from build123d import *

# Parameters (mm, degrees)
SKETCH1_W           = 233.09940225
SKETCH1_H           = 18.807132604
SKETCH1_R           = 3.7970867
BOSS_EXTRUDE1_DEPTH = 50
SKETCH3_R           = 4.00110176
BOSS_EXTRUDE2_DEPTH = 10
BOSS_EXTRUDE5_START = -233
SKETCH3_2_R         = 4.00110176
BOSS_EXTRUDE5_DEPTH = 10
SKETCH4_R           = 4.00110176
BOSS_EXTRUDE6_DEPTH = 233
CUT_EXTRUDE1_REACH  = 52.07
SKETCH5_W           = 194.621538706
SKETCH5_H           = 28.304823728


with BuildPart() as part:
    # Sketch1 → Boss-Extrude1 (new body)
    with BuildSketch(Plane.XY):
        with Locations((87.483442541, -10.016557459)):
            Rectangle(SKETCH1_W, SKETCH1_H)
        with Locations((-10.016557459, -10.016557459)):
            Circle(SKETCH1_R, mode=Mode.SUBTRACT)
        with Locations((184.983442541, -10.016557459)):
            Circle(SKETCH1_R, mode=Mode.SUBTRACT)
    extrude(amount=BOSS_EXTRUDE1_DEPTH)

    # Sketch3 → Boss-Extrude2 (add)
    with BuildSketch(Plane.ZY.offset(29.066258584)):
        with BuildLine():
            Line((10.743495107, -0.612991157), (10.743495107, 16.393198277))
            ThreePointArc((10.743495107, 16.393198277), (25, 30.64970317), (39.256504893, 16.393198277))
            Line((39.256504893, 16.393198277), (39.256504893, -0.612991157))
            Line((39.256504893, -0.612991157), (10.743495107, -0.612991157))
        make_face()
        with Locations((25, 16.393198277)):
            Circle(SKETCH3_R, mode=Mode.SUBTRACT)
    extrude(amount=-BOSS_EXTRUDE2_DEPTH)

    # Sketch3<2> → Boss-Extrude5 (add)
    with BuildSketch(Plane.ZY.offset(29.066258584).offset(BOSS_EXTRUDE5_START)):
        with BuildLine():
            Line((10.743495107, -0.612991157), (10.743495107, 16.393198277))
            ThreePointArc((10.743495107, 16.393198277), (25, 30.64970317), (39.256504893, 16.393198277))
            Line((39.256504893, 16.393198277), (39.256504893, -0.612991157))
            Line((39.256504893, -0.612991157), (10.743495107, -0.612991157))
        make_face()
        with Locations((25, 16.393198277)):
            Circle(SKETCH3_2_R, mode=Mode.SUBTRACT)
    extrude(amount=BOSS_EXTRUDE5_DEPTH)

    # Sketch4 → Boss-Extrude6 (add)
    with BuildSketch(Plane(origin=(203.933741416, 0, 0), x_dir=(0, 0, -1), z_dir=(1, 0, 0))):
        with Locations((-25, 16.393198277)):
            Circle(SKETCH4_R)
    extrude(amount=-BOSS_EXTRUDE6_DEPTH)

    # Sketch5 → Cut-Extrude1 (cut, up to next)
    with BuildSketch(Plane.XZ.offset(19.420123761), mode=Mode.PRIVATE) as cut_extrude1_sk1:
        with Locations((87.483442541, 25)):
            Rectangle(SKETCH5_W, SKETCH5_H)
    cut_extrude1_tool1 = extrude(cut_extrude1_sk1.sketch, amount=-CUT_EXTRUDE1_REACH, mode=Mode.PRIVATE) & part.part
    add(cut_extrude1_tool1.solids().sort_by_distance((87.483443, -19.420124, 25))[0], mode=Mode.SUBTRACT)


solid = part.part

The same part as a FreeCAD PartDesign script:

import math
import FreeCAD as App
import Part
import Sketcher

V = App.Vector
Q = App.Units.Quantity


def add_polygon(sketch, points):
    """Adds a closed chain of lines whose ends are joined by coincident constraints."""
    first, n = sketch.GeometryCount, len(points)
    for a, b in zip(points, points[1:] + points[:1]):
        sketch.addGeometry(Part.LineSegment(App.Vector(*a, 0), App.Vector(*b, 0)), False)
    for i in range(n):
        sketch.addConstraint(Sketcher.Constraint("Coincident", first + i, 2, first + (i + 1) % n, 1))

doc = App.newDocument("Part")
body = doc.addObject("PartDesign::Body", "Body")

sketch1 = body.newObject("Sketcher::SketchObject", "Sketch")
sketch1.AttachmentSupport = (doc.getObject("XY_Plane"), [""])
sketch1.MapMode = "FlatFace"
add_polygon(sketch1, [(-29.1, -0.6), (-29.1, -19.4), (204, -19.4), (204, -0.6)])
sketch1.addGeometry(Part.Circle(V(-10, -10, 0), V(0, 0, 1), 3.8), False)
sketch1.addGeometry(Part.Circle(V(185, -10, 0), V(0, 0, 1), 3.8), False)
sketch1.addConstraint(Sketcher.Constraint("Vertical", 0))
sketch1.addConstraint(Sketcher.Constraint("Horizontal", 1))
sketch1.addConstraint(Sketcher.Constraint("Vertical", 2))
sketch1.addConstraint(Sketcher.Constraint("Horizontal", 3))
sketch1.addConstraint(Sketcher.Constraint("Equal", 4, 5))
sketch1.addConstraint(Sketcher.Constraint("Horizontal", 4, 3, 5, 3))
sketch1.addConstraint(Sketcher.Constraint("DistanceX", 4, 3, 5, 3, Q("195 mm")))
sketch1.addConstraint(Sketcher.Constraint("Diameter", 4, Q("7.594173 mm")))
sketch1.addConstraint(Sketcher.Constraint("DistanceX", 0, 2, 4, 3, Q("19.049701 mm")))
sketch1.addConstraint(Sketcher.Constraint("DistanceX", 5, 3, 1, 2, Q("19.049701 mm")))
sketch1.addConstraint(Sketcher.Constraint("DistanceY", 0, 2, 0, 1, Q("18.807133 mm")))
sketch1.addConstraint(Sketcher.Constraint("DistanceX", 0, 2, -1, 1, Q("29.066259 mm")))
sketch1.addConstraint(Sketcher.Constraint("DistanceY", 2, 2, -1, 1, Q("0.612991 mm")))
sketch1.addConstraint(Sketcher.Constraint("DistanceY", 4, 3, -1, 1, Q("10.016557 mm")))
pad1 = body.newObject("PartDesign::Pad", "Pad")
pad1.Profile = sketch1
pad1.Length = 50

sketch2 = body.newObject("Sketcher::SketchObject", "Sketch001")
sketch2.AttachmentSupport = (doc.getObject("YZ_Plane"), [""])
sketch2.MapMode = "FlatFace"
sketch2.AttachmentOffset = App.Placement(V(0, 0, -29.066259), App.Rotation())
sketch2.addGeometry(Part.LineSegment(V(16.4, 10.7, 0), V(-0.6, 10.7, 0)), False)
sketch2.addGeometry(Part.LineSegment(V(-0.6, 10.7, 0), V(-0.6, 39.3, 0)), False)
sketch2.addGeometry(Part.LineSegment(V(-0.6, 39.3, 0), V(16.4, 39.3, 0)), False)
sketch2.addGeometry(Part.ArcOfCircle(Part.Circle(V(16.4, 25, 0), V(0, 0, 1), 14.3), math.radians(-90), math.radians(90)), False)
sketch2.addGeometry(Part.Circle(V(16.4, 25, 0), V(0, 0, 1), 4), False)
sketch2.addConstraint(Sketcher.Constraint("Coincident", 0, 2, 1, 1))
sketch2.addConstraint(Sketcher.Constraint("Coincident", 1, 2, 2, 1))
sketch2.addConstraint(Sketcher.Constraint("Tangent", 2, 2, 3, 2))
sketch2.addConstraint(Sketcher.Constraint("Tangent", 3, 1, 0, 1))
sketch2.addConstraint(Sketcher.Constraint("Horizontal", 0))
sketch2.addConstraint(Sketcher.Constraint("Vertical", 1))
sketch2.addConstraint(Sketcher.Constraint("Horizontal", 2))
sketch2.addConstraint(Sketcher.Constraint("Coincident", 4, 3, 3, 3))
sketch2.addConstraint(Sketcher.Constraint("DistanceY", -1, 1, 3, 3, Q("25 mm")))
sketch2.addConstraint(Sketcher.Constraint("Diameter", 4, Q("8.002204 mm")))
sketch2.addConstraint(Sketcher.Constraint("Radius", 3, Q("14.256505 mm")))
sketch2.addConstraint(Sketcher.Constraint("DistanceX", 0, 2, 0, 1, Q("17.006189 mm")))
sketch2.addConstraint(Sketcher.Constraint("DistanceX", -1, 1, 3, 3, Q("16.393198 mm")))
pad2 = body.newObject("PartDesign::Pad", "Pad001")
pad2.Profile = sketch2
pad2.Length = 10

sketch3 = body.newObject("Sketcher::SketchObject", "Sketch002")
sketch3.AttachmentSupport = (doc.getObject("YZ_Plane"), [""])
sketch3.MapMode = "FlatFace"
sketch3.AttachmentOffset = App.Placement(V(0, 0, 203.933741), App.Rotation())
sketch3.addGeometry(Part.LineSegment(V(16.4, 10.7, 0), V(-0.6, 10.7, 0)), False)
sketch3.addGeometry(Part.LineSegment(V(-0.6, 10.7, 0), V(-0.6, 39.3, 0)), False)
sketch3.addGeometry(Part.LineSegment(V(-0.6, 39.3, 0), V(16.4, 39.3, 0)), False)
sketch3.addGeometry(Part.ArcOfCircle(Part.Circle(V(16.4, 25, 0), V(0, 0, 1), 14.3), math.radians(-90), math.radians(90)), False)
sketch3.addGeometry(Part.Circle(V(16.4, 25, 0), V(0, 0, 1), 4), False)
sketch3.addConstraint(Sketcher.Constraint("Coincident", 0, 2, 1, 1))
sketch3.addConstraint(Sketcher.Constraint("Coincident", 1, 2, 2, 1))
sketch3.addConstraint(Sketcher.Constraint("Tangent", 2, 2, 3, 2))
sketch3.addConstraint(Sketcher.Constraint("Tangent", 3, 1, 0, 1))
sketch3.addConstraint(Sketcher.Constraint("Horizontal", 0))
sketch3.addConstraint(Sketcher.Constraint("Vertical", 1))
sketch3.addConstraint(Sketcher.Constraint("Horizontal", 2))
sketch3.addConstraint(Sketcher.Constraint("Coincident", 4, 3, 3, 3))
sketch3.addConstraint(Sketcher.Constraint("DistanceY", -1, 1, 3, 3, Q("25 mm")))
sketch3.addConstraint(Sketcher.Constraint("Diameter", 4, Q("8.002204 mm")))
sketch3.addConstraint(Sketcher.Constraint("Radius", 3, Q("14.256505 mm")))
sketch3.addConstraint(Sketcher.Constraint("DistanceX", 0, 2, 0, 1, Q("17.006189 mm")))
sketch3.addConstraint(Sketcher.Constraint("DistanceX", -1, 1, 3, 3, Q("16.393198 mm")))
pad3 = body.newObject("PartDesign::Pad", "Pad002")
pad3.Profile = sketch3
pad3.Length = 10
pad3.Reversed = True

sketch4 = body.newObject("Sketcher::SketchObject", "Sketch003")
sketch4.AttachmentSupport = (doc.getObject("YZ_Plane"), [""])
sketch4.MapMode = "FlatFace"
sketch4.AttachmentOffset = App.Placement(V(0, 0, 203.933741), App.Rotation())
sketch4.addGeometry(Part.Circle(V(16.4, 25, 0), V(0, 0, 1), 4), False)
sketch4.addConstraint(Sketcher.Constraint("DistanceY", -1, 1, 0, 3, Q("25 mm")))
sketch4.addConstraint(Sketcher.Constraint("Diameter", 0, Q("8.002204 mm")))
sketch4.addConstraint(Sketcher.Constraint("DistanceX", -1, 1, 0, 3, Q("16.393198 mm")))
pad4 = body.newObject("PartDesign::Pad", "Pad003")
pad4.Profile = sketch4
pad4.Length = 233
pad4.Reversed = True

sketch5 = body.newObject("Sketcher::SketchObject", "Sketch004")
sketch5.AttachmentSupport = (doc.getObject("XZ_Plane"), [""])
sketch5.MapMode = "FlatFace"
sketch5.AttachmentOffset = App.Placement(V(0, 0, 19.420124), App.Rotation())
add_polygon(sketch5, [(-10, 39), (-10, 11), (185, 11), (185, 39)])
sketch5.addConstraint(Sketcher.Constraint("Vertical", 0))
sketch5.addConstraint(Sketcher.Constraint("Horizontal", 1))
sketch5.addConstraint(Sketcher.Constraint("Vertical", 2))
sketch5.addConstraint(Sketcher.Constraint("Horizontal", 3))
sketch5.addConstraint(Sketcher.Constraint("DistanceX", 1, 1, 1, 2, Q("194.621539 mm")))
sketch5.addConstraint(Sketcher.Constraint("DistanceY", 0, 2, 0, 1, Q("28.304824 mm")))
sketch5.addConstraint(Sketcher.Constraint("DistanceY", -1, 1, 0, 2, Q("10.847588 mm")))
sketch5.addConstraint(Sketcher.Constraint("DistanceX", -1, 1, 1, 2, Q("184.794212 mm")))
pocket1 = body.newObject("PartDesign::Pocket", "Pocket")
pocket1.Profile = sketch5
pocket1.Type = "UpToFirst"

doc.recompute()
